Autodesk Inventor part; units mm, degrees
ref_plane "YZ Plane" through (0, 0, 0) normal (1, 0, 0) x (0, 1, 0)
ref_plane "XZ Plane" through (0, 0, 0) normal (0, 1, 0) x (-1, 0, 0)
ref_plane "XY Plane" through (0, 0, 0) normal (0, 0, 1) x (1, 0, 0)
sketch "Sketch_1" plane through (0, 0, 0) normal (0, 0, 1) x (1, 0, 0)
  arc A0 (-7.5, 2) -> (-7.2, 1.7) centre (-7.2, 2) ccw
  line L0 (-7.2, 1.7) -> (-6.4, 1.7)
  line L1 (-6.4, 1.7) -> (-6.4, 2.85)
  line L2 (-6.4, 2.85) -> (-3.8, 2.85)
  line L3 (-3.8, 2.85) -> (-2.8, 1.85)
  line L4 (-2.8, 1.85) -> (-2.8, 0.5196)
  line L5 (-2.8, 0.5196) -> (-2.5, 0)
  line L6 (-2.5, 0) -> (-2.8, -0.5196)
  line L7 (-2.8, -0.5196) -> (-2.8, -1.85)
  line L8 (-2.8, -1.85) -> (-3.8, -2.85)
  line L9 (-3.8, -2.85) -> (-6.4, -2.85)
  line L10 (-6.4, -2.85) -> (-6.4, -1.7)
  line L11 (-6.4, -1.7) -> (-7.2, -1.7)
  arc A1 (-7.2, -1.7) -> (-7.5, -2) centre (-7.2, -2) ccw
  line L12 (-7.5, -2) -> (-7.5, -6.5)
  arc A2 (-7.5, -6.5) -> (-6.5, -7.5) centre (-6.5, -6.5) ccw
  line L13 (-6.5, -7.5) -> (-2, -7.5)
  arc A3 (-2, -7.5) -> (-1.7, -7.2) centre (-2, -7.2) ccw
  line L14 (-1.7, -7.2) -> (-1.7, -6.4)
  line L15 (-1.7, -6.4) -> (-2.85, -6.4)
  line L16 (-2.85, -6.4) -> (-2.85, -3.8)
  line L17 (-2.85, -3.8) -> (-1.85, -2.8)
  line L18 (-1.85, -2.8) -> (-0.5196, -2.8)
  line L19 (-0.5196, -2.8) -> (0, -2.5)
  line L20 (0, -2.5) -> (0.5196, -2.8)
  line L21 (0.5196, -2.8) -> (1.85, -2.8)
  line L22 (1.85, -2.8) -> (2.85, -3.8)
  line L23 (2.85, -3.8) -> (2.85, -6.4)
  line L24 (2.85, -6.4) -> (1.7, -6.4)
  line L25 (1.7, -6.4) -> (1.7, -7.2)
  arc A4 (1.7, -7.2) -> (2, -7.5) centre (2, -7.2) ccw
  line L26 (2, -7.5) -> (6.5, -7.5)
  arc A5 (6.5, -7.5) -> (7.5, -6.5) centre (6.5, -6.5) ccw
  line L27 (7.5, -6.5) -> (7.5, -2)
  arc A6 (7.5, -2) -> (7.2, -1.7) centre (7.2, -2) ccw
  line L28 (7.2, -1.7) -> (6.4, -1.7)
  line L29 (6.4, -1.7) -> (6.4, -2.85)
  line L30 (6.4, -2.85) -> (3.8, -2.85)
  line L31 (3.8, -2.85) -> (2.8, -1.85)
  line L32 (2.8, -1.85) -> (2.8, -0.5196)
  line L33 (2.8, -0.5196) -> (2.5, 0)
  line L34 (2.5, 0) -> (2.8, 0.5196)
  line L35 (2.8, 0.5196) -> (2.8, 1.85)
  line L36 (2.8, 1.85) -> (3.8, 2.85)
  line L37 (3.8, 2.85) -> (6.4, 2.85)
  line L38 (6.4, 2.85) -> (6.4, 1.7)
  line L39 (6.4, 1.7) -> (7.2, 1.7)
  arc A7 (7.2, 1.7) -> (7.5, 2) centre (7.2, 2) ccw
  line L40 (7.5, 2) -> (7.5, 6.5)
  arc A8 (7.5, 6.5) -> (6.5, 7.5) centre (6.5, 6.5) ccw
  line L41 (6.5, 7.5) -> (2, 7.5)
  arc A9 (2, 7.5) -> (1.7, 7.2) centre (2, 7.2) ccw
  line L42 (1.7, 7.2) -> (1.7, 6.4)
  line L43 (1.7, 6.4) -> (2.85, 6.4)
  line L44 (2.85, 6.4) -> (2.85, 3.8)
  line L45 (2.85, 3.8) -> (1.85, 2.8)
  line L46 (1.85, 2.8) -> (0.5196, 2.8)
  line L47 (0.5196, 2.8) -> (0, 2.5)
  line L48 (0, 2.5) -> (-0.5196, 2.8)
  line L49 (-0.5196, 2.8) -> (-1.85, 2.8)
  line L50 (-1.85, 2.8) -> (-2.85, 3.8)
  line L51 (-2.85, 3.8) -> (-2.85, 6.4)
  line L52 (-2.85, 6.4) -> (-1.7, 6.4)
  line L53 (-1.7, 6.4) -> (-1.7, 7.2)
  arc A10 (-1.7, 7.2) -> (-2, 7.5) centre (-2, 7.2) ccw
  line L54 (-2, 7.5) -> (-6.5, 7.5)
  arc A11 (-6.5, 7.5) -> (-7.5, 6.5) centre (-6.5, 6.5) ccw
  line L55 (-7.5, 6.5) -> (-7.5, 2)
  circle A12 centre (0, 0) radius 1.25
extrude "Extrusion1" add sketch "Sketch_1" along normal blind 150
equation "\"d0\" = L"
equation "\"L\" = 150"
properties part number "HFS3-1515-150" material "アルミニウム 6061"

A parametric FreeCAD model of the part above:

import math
import FreeCAD as App
import Part
import Sketcher
Q = App.Units.Quantity

doc = App.newDocument("Part")
body = doc.addObject("PartDesign::Body", "Body")

# Sketch on XY plane
sketch1 = body.newObject("Sketcher::SketchObject", "Sketch")
sketch1.AttachmentSupport = (doc.getObject("XY_Plane"), [""])
sketch1.MapMode = "FlatFace"
sketch1.addGeometry(Part.LineSegment(App.Vector(-7.5, 6.5, 0), App.Vector(-7.5, 2, 0)), False)
sketch1.addGeometry(Part.ArcOfCircle(Part.Circle(App.Vector(-7.2, 2, 0), App.Vector(0, 0, 1), 0.3), math.radians(180), math.radians(270)), False)
sketch1.addGeometry(Part.LineSegment(App.Vector(-7.2, 1.7, 0), App.Vector(-6.4, 1.7, 0)), False)
sketch1.addGeometry(Part.LineSegment(App.Vector(-6.4, 1.7, 0), App.Vector(-6.4, 2.85, 0)), False)
sketch1.addGeometry(Part.LineSegment(App.Vector(-6.4, 2.85, 0), App.Vector(-3.8, 2.85, 0)), False)
sketch1.addGeometry(Part.LineSegment(App.Vector(-3.8, 2.85, 0), App.Vector(-2.8, 1.85, 0)), False)
sketch1.addGeometry(Part.LineSegment(App.Vector(-2.8, 1.85, 0), App.Vector(-2.8, 0.52, 0)), False)
sketch1.addGeometry(Part.LineSegment(App.Vector(-2.8, 0.52, 0), App.Vector(-2.5, 0, 0)), False)
sketch1.addGeometry(Part.LineSegment(App.Vector(-2.5, 0, 0), App.Vector(-2.8, -0.52, 0)), False)
sketch1.addGeometry(Part.LineSegment(App.Vector(-2.8, -0.52, 0), App.Vector(-2.8, -1.85, 0)), False)
sketch1.addGeometry(Part.LineSegment(App.Vector(-2.8, -1.85, 0), App.Vector(-3.8, -2.85, 0)), False)
sketch1.addGeometry(Part.LineSegment(App.Vector(-3.8, -2.85, 0), App.Vector(-6.4, -2.85, 0)), False)
sketch1.addGeometry(Part.LineSegment(App.Vector(-6.4, -2.85, 0), App.Vector(-6.4, -1.7, 0)), False)
sketch1.addGeometry(Part.LineSegment(App.Vector(-6.4, -1.7, 0), App.Vector(-7.2, -1.7, 0)), False)
sketch1.addGeometry(Part.ArcOfCircle(Part.Circle(App.Vector(-7.2, -2, 0), App.Vector(0, 0, 1), 0.3), math.radians(90), math.radians(180)), False)
sketch1.addGeometry(Part.LineSegment(App.Vector(-7.5, -2, 0), App.Vector(-7.5, -6.5, 0)), False)
sketch1.addGeometry(Part.ArcOfCircle(Part.Circle(App.Vector(-6.5, -6.5, 0), App.Vector(0, 0, 1), 1), math.radians(180), math.radians(270)), False)
sketch1.addGeometry(Part.LineSegment(App.Vector(-6.5, -7.5, 0), App.Vector(-2, -7.5, 0)), False)
sketch1.addGeometry(Part.ArcOfCircle(Part.Circle(App.Vector(-2, -7.2, 0), App.Vector(0, 0, 1), 0.3), math.radians(-90), math.radians(0)), False)
sketch1.addGeometry(Part.LineSegment(App.Vector(-1.7, -7.2, 0), App.Vector(-1.7, -6.4, 0)), False)
sketch1.addGeometry(Part.LineSegment(App.Vector(-1.7, -6.4, 0), App.Vector(-2.85, -6.4, 0)), False)
sketch1.addGeometry(Part.LineSegment(App.Vector(-2.85, -6.4, 0), App.Vector(-2.85, -3.8, 0)), False)
sketch1.addGeometry(Part.LineSegment(App.Vector(-2.85, -3.8, 0), App.Vector(-1.85, -2.8, 0)), False)
sketch1.addGeometry(Part.LineSegment(App.Vector(-1.85, -2.8, 0), App.Vector(-0.52, -2.8, 0)), False)
sketch1.addGeometry(Part.LineSegment(App.Vector(-0.52, -2.8, 0), App.Vector(0, -2.5, 0)), False)
sketch1.addGeometry(Part.LineSegment(App.Vector(0, -2.5, 0), App.Vector(0.52, -2.8, 0)), False)
sketch1.addGeometry(Part.LineSegment(App.Vector(0.52, -2.8, 0), App.Vector(1.85, -2.8, 0)), False)
sketch1.addGeometry(Part.LineSegment(App.Vector(1.85, -2.8, 0), App.Vector(2.85, -3.8, 0)), False)
sketch1.addGeometry(Part.LineSegment(App.Vector(2.85, -3.8, 0), App.Vector(2.85, -6.4, 0)), False)
sketch1.addGeometry(Part.LineSegment(App.Vector(2.85, -6.4, 0), App.Vector(1.7, -6.4, 0)), False)
sketch1.addGeometry(Part.LineSegment(App.Vector(1.7, -6.4, 0), App.Vector(1.7, -7.2, 0)), False)
sketch1.addGeometry(Part.ArcOfCircle(Part.Circle(App.Vector(2, -7.2, 0), App.Vector(0, 0, 1), 0.3), math.radians(180), math.radians(270)), False)
sketch1.addGeometry(Part.LineSegment(App.Vector(2, -7.5, 0), App.Vector(6.5, -7.5, 0)), False)
sketch1.addGeometry(Part.ArcOfCircle(Part.Circle(App.Vector(6.5, -6.5, 0), App.Vector(0, 0, 1), 1), math.radians(-90), math.radians(0)), False)
sketch1.addGeometry(Part.LineSegment(App.Vector(7.5, -6.5, 0), App.Vector(7.5, -2, 0)), False)
sketch1.addGeometry(Part.ArcOfCircle(Part.Circle(App.Vector(7.2, -2, 0), App.Vector(0, 0, 1), 0.3), math.radians(0), math.radians(90)), False)
sketch1.addGeometry(Part.LineSegment(App.Vector(7.2, -1.7, 0), App.Vector(6.4, -1.7, 0)), False)
sketch1.addGeometry(Part.LineSegment(App.Vector(6.4, -1.7, 0), App.Vector(6.4, -2.85, 0)), False)
sketch1.addGeometry(Part.LineSegment(App.Vector(6.4, -2.85, 0), App.Vector(3.8, -2.85, 0)), False)
sketch1.addGeometry(Part.LineSegment(App.Vector(3.8, -2.85, 0), App.Vector(2.8, -1.85, 0)), False)
sketch1.addGeometry(Part.LineSegment(App.Vector(2.8, -1.85, 0), App.Vector(2.8, -0.52, 0)), False)
sketch1.addGeometry(Part.LineSegment(App.Vector(2.8, -0.52, 0), App.Vector(2.5, 0, 0)), False)
sketch1.addGeometry(Part.LineSegment(App.Vector(2.5, 0, 0), App.Vector(2.8, 0.52, 0)), False)
sketch1.addGeometry(Part.LineSegment(App.Vector(2.8, 0.52, 0), App.Vector(2.8, 1.85, 0)), False)
sketch1.addGeometry(Part.LineSegment(App.Vector(2.8, 1.85, 0), App.Vector(3.8, 2.85, 0)), False)
sketch1.addGeometry(Part.LineSegment(App.Vector(3.8, 2.85, 0), App.Vector(6.4, 2.85, 0)), False)
sketch1.addGeometry(Part.LineSegment(App.Vector(6.4, 2.85, 0), App.Vector(6.4, 1.7, 0)), False)
sketch1.addGeometry(Part.LineSegment(App.Vector(6.4, 1.7, 0), App.Vector(7.2, 1.7, 0)), False)
sketch1.addGeometry(Part.ArcOfCircle(Part.Circle(App.Vector(7.2, 2, 0), App.Vector(0, 0, 1), 0.3), math.radians(-90), math.radians(0)), False)
sketch1.addGeometry(Part.LineSegment(App.Vector(7.5, 2, 0), App.Vector(7.5, 6.5, 0)), False)
sketch1.addGeometry(Part.ArcOfCircle(Part.Circle(App.Vector(6.5, 6.5, 0), App.Vector(0, 0, 1), 1), math.radians(0), math.radians(90)), False)
sketch1.addGeometry(Part.LineSegment(App.Vector(6.5, 7.5, 0), App.Vector(2, 7.5, 0)), False)
sketch1.addGeometry(Part.ArcOfCircle(Part.Circle(App.Vector(2, 7.2, 0), App.Vector(0, 0, 1), 0.3), math.radians(90), math.radians(180)), False)
sketch1.addGeometry(Part.LineSegment(App.Vector(1.7, 7.2, 0), App.Vector(1.7, 6.4, 0)), False)
sketch1.addGeometry(Part.LineSegment(App.Vector(1.7, 6.4, 0), App.Vector(2.85, 6.4, 0)), False)
sketch1.addGeometry(Part.LineSegment(App.Vector(2.85, 6.4, 0), App.Vector(2.85, 3.8, 0)), False)
sketch1.addGeometry(Part.LineSegment(App.Vector(2.85, 3.8, 0), App.Vector(1.85, 2.8, 0)), False)
sketch1.addGeometry(Part.LineSegment(App.Vector(1.85, 2.8, 0), App.Vector(0.52, 2.8, 0)), False)
sketch1.addGeometry(Part.LineSegment(App.Vector(0.52, 2.8, 0), App.Vector(0, 2.5, 0)), False)
sketch1.addGeometry(Part.LineSegment(App.Vector(0, 2.5, 0), App.Vector(-0.52, 2.8, 0)), False)
sketch1.addGeometry(Part.LineSegment(App.Vector(-0.52, 2.8, 0), App.Vector(-1.85, 2.8, 0)), False)
sketch1.addGeometry(Part.LineSegment(App.Vector(-1.85, 2.8, 0), App.Vector(-2.85, 3.8, 0)), False)
sketch1.addGeometry(Part.LineSegment(App.Vector(-2.85, 3.8, 0), App.Vector(-2.85, 6.4, 0)), False)
sketch1.addGeometry(Part.LineSegment(App.Vector(-2.85, 6.4, 0), App.Vector(-1.7, 6.4, 0)), False)
sketch1.addGeometry(Part.LineSegment(App.Vector(-1.7, 6.4, 0), App.Vector(-1.7, 7.2, 0)), False)
sketch1.addGeometry(Part.ArcOfCircle(Part.Circle(App.Vector(-2, 7.2, 0), App.Vector(0, 0, 1), 0.3), math.radians(0), math.radians(90)), False)
sketch1.addGeometry(Part.LineSegment(App.Vector(-2, 7.5, 0), App.Vector(-6.5, 7.5, 0)), False)
sketch1.addGeometry(Part.ArcOfCircle(Part.Circle(App.Vector(-6.5, 6.5, 0), App.Vector(0, 0, 1), 1), math.radians(90), math.radians(180)), False)
sketch1.addGeometry(Part.Circle(App.Vector(0, 0, 0), App.Vector(0, 0, 1), 1.25), False)
sketch1.addConstraint(Sketcher.Constraint("Tangent", 0, 2, 1, 1))
sketch1.addConstraint(Sketcher.Constraint("Tangent", 1, 2, 2, 1))
sketch1.addConstraint(Sketcher.Constraint("Coincident", 2, 2, 3, 1))
sketch1.addConstraint(Sketcher.Constraint("Coincident", 3, 2, 4, 1))
sketch1.addConstraint(Sketcher.Constraint("Coincident", 4, 2, 5, 1))
sketch1.addConstraint(Sketcher.Constraint("Coincident", 5, 2, 6, 1))
sketch1.addConstraint(Sketcher.Constraint("Coincident", 6, 2, 7, 1))
sketch1.addConstraint(Sketcher.Constraint("Coincident", 7, 2, 8, 1))
sketch1.addConstraint(Sketcher.Constraint("Coincident", 8, 2, 9, 1))
sketch1.addConstraint(Sketcher.Constraint("Coincident", 9, 2, 10, 1))
sketch1.addConstraint(Sketcher.Constraint("Coincident", 10, 2, 11, 1))
sketch1.addConstraint(Sketcher.Constraint("Coincident", 11, 2, 12, 1))
sketch1.addConstraint(Sketcher.Constraint("Coincident", 12, 2, 13, 1))
sketch1.addConstraint(Sketcher.Constraint("Tangent", 13, 2, 14, 1))
sketch1.addConstraint(Sketcher.Constraint("Tangent", 14, 2, 15, 1))
sketch1.addConstraint(Sketcher.Constraint("Tangent", 15, 2, 16, 1))
sketch1.addConstraint(Sketcher.Constraint("Tangent", 16, 2, 17, 1))
sketch1.addConstraint(Sketcher.Constraint("Tangent", 17, 2, 18, 1))
sketch1.addConstraint(Sketcher.Constraint("Tangent", 18, 2, 19, 1))
sketch1.addConstraint(Sketcher.Constraint("Coincident", 19, 2, 20, 1))
sketch1.addConstraint(Sketcher.Constraint("Coincident", 20, 2, 21, 1))
sketch1.addConstraint(Sketcher.Constraint("Coincident", 21, 2, 22, 1))
sketch1.addConstraint(Sketcher.Constraint("Coincident", 22, 2, 23, 1))
sketch1.addConstraint(Sketcher.Constraint("Coincident", 23, 2, 24, 1))
sketch1.addConstraint(Sketcher.Constraint("Coincident", 24, 2, 25, 1))
sketch1.addConstraint(Sketcher.Constraint("Coincident", 25, 2, 26, 1))
sketch1.addConstraint(Sketcher.Constraint("Coincident", 26, 2, 27, 1))
sketch1.addConstraint(Sketcher.Constraint("Coincident", 27, 2, 28, 1))
sketch1.addConstraint(Sketcher.Constraint("Coincident", 28, 2, 29, 1))
sketch1.addConstraint(Sketcher.Constraint("Coincident", 29, 2, 30, 1))
sketch1.addConstraint(Sketcher.Constraint("Tangent", 30, 2, 31, 1))
sketch1.addConstraint(Sketcher.Constraint("Tangent", 31, 2, 32, 1))
sketch1.addConstraint(Sketcher.Constraint("Tangent", 32, 2, 33, 1))
sketch1.addConstraint(Sketcher.Constraint("Tangent", 33, 2, 34, 1))
sketch1.addConstraint(Sketcher.Constraint("Tangent", 34, 2, 35, 1))
sketch1.addConstraint(Sketcher.Constraint("Tangent", 35, 2, 36, 1))
sketch1.addConstraint(Sketcher.Constraint("Coincident", 36, 2, 37, 1))
sketch1.addConstraint(Sketcher.Constraint("Coincident", 37, 2, 38, 1))
sketch1.addConstraint(Sketcher.Constraint("Coincident", 38, 2, 39, 1))
sketch1.addConstraint(Sketcher.Constraint("Coincident", 39, 2, 40, 1))
sketch1.addConstraint(Sketcher.Constraint("Coincident", 40, 2, 41, 1))
sketch1.addConstraint(Sketcher.Constraint("Coincident", 41, 2, 42, 1))
sketch1.addConstraint(Sketcher.Constraint("Coincident", 42, 2, 43, 1))
sketch1.addConstraint(Sketcher.Constraint("Coincident", 43, 2, 44, 1))
sketch1.addConstraint(Sketcher.Constraint("Coincident", 44, 2, 45, 1))
sketch1.addConstraint(Sketcher.Constraint("Coincident", 45, 2, 46, 1))
sketch1.addConstraint(Sketcher.Constraint("Coincident", 46, 2, 47, 1))
sketch1.addConstraint(Sketcher.Constraint("Tangent", 47, 2, 48, 1))
sketch1.addConstraint(Sketcher.Constraint("Tangent", 48, 2, 49, 1))
sketch1.addConstraint(Sketcher.Constraint("Tangent", 49, 2, 50, 1))
sketch1.addConstraint(Sketcher.Constraint("Tangent", 50, 2, 51, 1))
sketch1.addConstraint(Sketcher.Constraint("Tangent", 51, 2, 52, 1))
sketch1.addConstraint(Sketcher.Constraint("Tangent", 52, 2, 53, 1))
sketch1.addConstraint(Sketcher.Constraint("Coincident", 53, 2, 54, 1))
sketch1.addConstraint(Sketcher.Constraint("Coincident", 54, 2, 55, 1))
sketch1.addConstraint(Sketcher.Constraint("Coincident", 55, 2, 56, 1))
sketch1.addConstraint(Sketcher.Constraint("Coincident", 56, 2, 57, 1))
sketch1.addConstraint(Sketcher.Constraint("Coincident", 57, 2, 58, 1))
sketch1.addConstraint(Sketcher.Constraint("Coincident", 58, 2, 59, 1))
sketch1.addConstraint(Sketcher.Constraint("Coincident", 59, 2, 60, 1))
sketch1.addConstraint(Sketcher.Constraint("Coincident", 60, 2, 61, 1))
sketch1.addConstraint(Sketcher.Constraint("Coincident", 61, 2, 62, 1))
sketch1.addConstraint(Sketcher.Constraint("Coincident", 62, 2, 63, 1))
sketch1.addConstraint(Sketcher.Constraint("Coincident", 63, 2, 64, 1))
sketch1.addConstraint(Sketcher.Constraint("Tangent", 64, 2, 65, 1))
sketch1.addConstraint(Sketcher.Constraint("Tangent", 65, 2, 66, 1))
sketch1.addConstraint(Sketcher.Constraint("Tangent", 66, 2, 67, 1))
sketch1.addConstraint(Sketcher.Constraint("Tangent", 67, 2, 0, 1))
sketch1.addConstraint(Sketcher.Constraint("Vertical", 0))
sketch1.addConstraint(Sketcher.Constraint("Horizontal", 2))
sketch1.addConstraint(Sketcher.Constraint("Vertical", 3))
sketch1.addConstraint(Sketcher.Constraint("Horizontal", 4))
sketch1.addConstraint(Sketcher.Constraint("Vertical", 6))
sketch1.addConstraint(Sketcher.Constraint("Vertical", 9))
sketch1.addConstraint(Sketcher.Constraint("Horizontal", 11))
sketch1.addConstraint(Sketcher.Constraint("Vertical", 12))
sketch1.addConstraint(Sketcher.Constraint("Horizontal", 13))
sketch1.addConstraint(Sketcher.Constraint("Vertical", 15))
sketch1.addConstraint(Sketcher.Constraint("Horizontal", 17))
sketch1.addConstraint(Sketcher.Constraint("Vertical", 19))
sketch1.addConstraint(Sketcher.Constraint("Horizontal", 20))
sketch1.addConstraint(Sketcher.Constraint("Vertical", 21))
sketch1.addConstraint(Sketcher.Constraint("Horizontal", 23))
sketch1.addConstraint(Sketcher.Constraint("Horizontal", 26))
sketch1.addConstraint(Sketcher.Constraint("Vertical", 28))
sketch1.addConstraint(Sketcher.Constraint("Horizontal", 29))
sketch1.addConstraint(Sketcher.Constraint("Vertical", 30))
sketch1.addConstraint(Sketcher.Constraint("Horizontal", 32))
sketch1.addConstraint(Sketcher.Constraint("Vertical", 34))
sketch1.addConstraint(Sketcher.Constraint("Horizontal", 36))
sketch1.addConstraint(Sketcher.Constraint("Vertical", 37))
sketch1.addConstraint(Sketcher.Constraint("Horizontal", 38))
sketch1.addConstraint(Sketcher.Constraint("Vertical", 40))
sketch1.addConstraint(Sketcher.Constraint("Vertical", 43))
sketch1.addConstraint(Sketcher.Constraint("Horizontal", 45))
sketch1.addConstraint(Sketcher.Constraint("Vertical", 46))
sketch1.addConstraint(Sketcher.Constraint("Horizontal", 47))
sketch1.addConstraint(Sketcher.Constraint("Vertical", 49))
sketch1.addConstraint(Sketcher.Constraint("Horizontal", 51))
sketch1.addConstraint(Sketcher.Constraint("Vertical", 53))
sketch1.addConstraint(Sketcher.Constraint("Horizontal", 54))
sketch1.addConstraint(Sketcher.Constraint("Vertical", 55))
sketch1.addConstraint(Sketcher.Constraint("Horizontal", 57))
sketch1.addConstraint(Sketcher.Constraint("Horizontal", 60))
sketch1.addConstraint(Sketcher.Constraint("Vertical", 62))
sketch1.addConstraint(Sketcher.Constraint("Horizontal", 63))
sketch1.addConstraint(Sketcher.Constraint("Vertical", 64))
sketch1.addConstraint(Sketcher.Constraint("Horizontal", 66))
sketch1.addConstraint(Sketcher.Constraint("Coincident", 68, 3, -1, 1))
sketch1.addConstraint(Sketcher.Constraint("Equal", 1, 14))
sketch1.addConstraint(Sketcher.Constraint("Equal", 14, 18))
sketch1.addConstraint(Sketcher.Constraint("Equal", 18, 31))
sketch1.addConstraint(Sketcher.Constraint("Equal", 16, 33))
sketch1.addConstraint(Sketcher.Constraint("Equal", 31, 35))
sketch1.addConstraint(Sketcher.Constraint("Equal", 35, 48))
sketch1.addConstraint(Sketcher.Constraint("Equal", 33, 50))
sketch1.addConstraint(Sketcher.Constraint("Equal", 48, 52))
sketch1.addConstraint(Sketcher.Constraint("Equal", 52, 65))
sketch1.addConstraint(Sketcher.Constraint("Equal", 50, 67))
sketch1.addConstraint(Sketcher.Constraint("Symmetric", 1, 3, 35, 3, -1, 1))
sketch1.addConstraint(Sketcher.Constraint("Symmetric", 14, 3, 48, 3, -1, 1))
sketch1.addConstraint(Sketcher.Constraint("Symmetric", 18, 3, 52, 3, -1, 1))
sketch1.addConstraint(Sketcher.Constraint("Symmetric", 31, 3, 65, 3, -1, 1))
sketch1.addConstraint(Sketcher.Constraint("Symmetric", 3, 2, 37, 2, -1, 1))
sketch1.addConstraint(Sketcher.Constraint("Symmetric", 5, 2, 39, 2, -1, 1))
sketch1.addConstraint(Sketcher.Constraint("Symmetric", 7, 2, 41, 2, -1, 1))
sketch1.addConstraint(Sketcher.Constraint("Symmetric", 8, 2, 42, 2, -1, 1))
sketch1.addConstraint(Sketcher.Constraint("Symmetric", 10, 2, 44, 2, -1, 1))
sketch1.addConstraint(Sketcher.Constraint("Symmetric", 20, 2, 54, 2, -1, 1))
sketch1.addConstraint(Sketcher.Constraint("Symmetric", 22, 2, 56, 2, -1, 1))
sketch1.addConstraint(Sketcher.Constraint("Symmetric", 24, 2, 58, 2, -1, 1))
sketch1.addConstraint(Sketcher.Constraint("Symmetric", 25, 2, 59, 2, -1, 1))
sketch1.addConstraint(Sketcher.Constraint("Symmetric", 27, 2, 61, 2, -1, 1))
sketch1.addConstraint(Sketcher.Constraint("Symmetric", 18, 3, 31, 3, -2))
sketch1.addConstraint(Sketcher.Constraint("Symmetric", 14, 3, 35, 3, -2))
sketch1.addConstraint(Sketcher.Constraint("Symmetric", 23, 2, 25, 2, -2))
sketch1.addConstraint(Sketcher.Constraint("Symmetric", 21, 2, 27, 2, -2))
sketch1.addConstraint(Sketcher.Constraint("Symmetric", 11, 2, 37, 2, -2))
sketch1.addConstraint(Sketcher.Constraint("Symmetric", 9, 2, 39, 2, -2))
sketch1.addConstraint(Sketcher.Constraint("PointOnObject", 7, 2, -1))
sketch1.addConstraint(Sketcher.Constraint("PointOnObject", 24, 2, -2))
sketch1.addConstraint(Sketcher.Constraint("Perpendicular", 5, 10))
sketch1.addConstraint(Sketcher.Constraint("Parallel", 10, 22))
sketch1.addConstraint(Sketcher.Constraint("Perpendicular", 7, 24))
sketch1.addConstraint(Sketcher.Constraint("Perpendicular", 8, 25))
sketch1.addConstraint(Sketcher.Constraint("Perpendicular", 22, 27))
sketch1.addConstraint(Sketcher.Constraint("Parallel", 27, 39))
sketch1.addConstraint(Sketcher.Constraint("Perpendicular", 24, 41))
sketch1.addConstraint(Sketcher.Constraint("Perpendicular", 39, 44))
sketch1.addConstraint(Sketcher.Constraint("Parallel", 44, 56))
sketch1.addConstraint(Sketcher.Constraint("Perpendicular", 41, 58))
sketch1.addConstraint(Sketcher.Constraint("Perpendicular", 56, 61))
sketch1.addConstraint(Sketcher.Constraint("Horizontal", 20, 2, 28, 2))
sketch1.addConstraint(Sketcher.Constraint("Horizontal", 54, 2, 62, 2))
sketch1.addConstraint(Sketcher.Constraint("Vertical", 4, 2, 10, 2))
sketch1.addConstraint(Sketcher.Constraint("Vertical", 37, 2, 45, 2))
sketch1.addConstraint(Sketcher.Constraint("Equal", 66, 0))
sketch1.addConstraint(Sketcher.Constraint("Equal", 63, 3))
sketch1.addConstraint(Sketcher.Constraint("Equal", 60, 6))
sketch1.addConstraint(Sketcher.Constraint("Equal", 47, 19))
sketch1.addConstraint(Sketcher.Constraint("Equal", 45, 21))
sketch1.addConstraint(Sketcher.Constraint("Equal", 10, 22))
sketch1.addConstraint(Sketcher.Constraint("Equal", 8, 24))
sketch1.addConstraint(Sketcher.Constraint("Radius", 16, 1.0))
sketch1.addConstraint(Sketcher.Constraint("Diameter", 68, 2.5))
sketch1.addConstraint(Sketcher.Constraint("Radius", 1, 0.3))
sketch1.addConstraint(Sketcher.Constraint("Angle", 7, Q("-59.9993 deg")))
sketch1.addConstraint(Sketcher.Constraint("DistanceX", 2, 1, 2, 2, 0.8))
sketch1.addConstraint(Sketcher.Constraint("DistanceX", 4, 1, 4, 2, 2.6))
sketch1.addConstraint(Sketcher.Constraint("DistanceX", 17, 1, 17, 2, 4.5))
sketch1.addConstraint(Sketcher.Constraint("DistanceY", -1, 1, 1, 3, 2.0))
sketch1.addConstraint(Sketcher.Constraint("Distance", 7, 0.6))
sketch1.addConstraint(Sketcher.Constraint("DistanceX", 20, 2, 20, 1, 1.15))
sketch1.addConstraint(Sketcher.Constraint("DistanceX", 5, 2, -1, 1, 2.8))
pad1 = body.newObject("PartDesign::Pad", "Pad")
pad1.Profile = sketch1
pad1.Length = 150

doc.recompute()
